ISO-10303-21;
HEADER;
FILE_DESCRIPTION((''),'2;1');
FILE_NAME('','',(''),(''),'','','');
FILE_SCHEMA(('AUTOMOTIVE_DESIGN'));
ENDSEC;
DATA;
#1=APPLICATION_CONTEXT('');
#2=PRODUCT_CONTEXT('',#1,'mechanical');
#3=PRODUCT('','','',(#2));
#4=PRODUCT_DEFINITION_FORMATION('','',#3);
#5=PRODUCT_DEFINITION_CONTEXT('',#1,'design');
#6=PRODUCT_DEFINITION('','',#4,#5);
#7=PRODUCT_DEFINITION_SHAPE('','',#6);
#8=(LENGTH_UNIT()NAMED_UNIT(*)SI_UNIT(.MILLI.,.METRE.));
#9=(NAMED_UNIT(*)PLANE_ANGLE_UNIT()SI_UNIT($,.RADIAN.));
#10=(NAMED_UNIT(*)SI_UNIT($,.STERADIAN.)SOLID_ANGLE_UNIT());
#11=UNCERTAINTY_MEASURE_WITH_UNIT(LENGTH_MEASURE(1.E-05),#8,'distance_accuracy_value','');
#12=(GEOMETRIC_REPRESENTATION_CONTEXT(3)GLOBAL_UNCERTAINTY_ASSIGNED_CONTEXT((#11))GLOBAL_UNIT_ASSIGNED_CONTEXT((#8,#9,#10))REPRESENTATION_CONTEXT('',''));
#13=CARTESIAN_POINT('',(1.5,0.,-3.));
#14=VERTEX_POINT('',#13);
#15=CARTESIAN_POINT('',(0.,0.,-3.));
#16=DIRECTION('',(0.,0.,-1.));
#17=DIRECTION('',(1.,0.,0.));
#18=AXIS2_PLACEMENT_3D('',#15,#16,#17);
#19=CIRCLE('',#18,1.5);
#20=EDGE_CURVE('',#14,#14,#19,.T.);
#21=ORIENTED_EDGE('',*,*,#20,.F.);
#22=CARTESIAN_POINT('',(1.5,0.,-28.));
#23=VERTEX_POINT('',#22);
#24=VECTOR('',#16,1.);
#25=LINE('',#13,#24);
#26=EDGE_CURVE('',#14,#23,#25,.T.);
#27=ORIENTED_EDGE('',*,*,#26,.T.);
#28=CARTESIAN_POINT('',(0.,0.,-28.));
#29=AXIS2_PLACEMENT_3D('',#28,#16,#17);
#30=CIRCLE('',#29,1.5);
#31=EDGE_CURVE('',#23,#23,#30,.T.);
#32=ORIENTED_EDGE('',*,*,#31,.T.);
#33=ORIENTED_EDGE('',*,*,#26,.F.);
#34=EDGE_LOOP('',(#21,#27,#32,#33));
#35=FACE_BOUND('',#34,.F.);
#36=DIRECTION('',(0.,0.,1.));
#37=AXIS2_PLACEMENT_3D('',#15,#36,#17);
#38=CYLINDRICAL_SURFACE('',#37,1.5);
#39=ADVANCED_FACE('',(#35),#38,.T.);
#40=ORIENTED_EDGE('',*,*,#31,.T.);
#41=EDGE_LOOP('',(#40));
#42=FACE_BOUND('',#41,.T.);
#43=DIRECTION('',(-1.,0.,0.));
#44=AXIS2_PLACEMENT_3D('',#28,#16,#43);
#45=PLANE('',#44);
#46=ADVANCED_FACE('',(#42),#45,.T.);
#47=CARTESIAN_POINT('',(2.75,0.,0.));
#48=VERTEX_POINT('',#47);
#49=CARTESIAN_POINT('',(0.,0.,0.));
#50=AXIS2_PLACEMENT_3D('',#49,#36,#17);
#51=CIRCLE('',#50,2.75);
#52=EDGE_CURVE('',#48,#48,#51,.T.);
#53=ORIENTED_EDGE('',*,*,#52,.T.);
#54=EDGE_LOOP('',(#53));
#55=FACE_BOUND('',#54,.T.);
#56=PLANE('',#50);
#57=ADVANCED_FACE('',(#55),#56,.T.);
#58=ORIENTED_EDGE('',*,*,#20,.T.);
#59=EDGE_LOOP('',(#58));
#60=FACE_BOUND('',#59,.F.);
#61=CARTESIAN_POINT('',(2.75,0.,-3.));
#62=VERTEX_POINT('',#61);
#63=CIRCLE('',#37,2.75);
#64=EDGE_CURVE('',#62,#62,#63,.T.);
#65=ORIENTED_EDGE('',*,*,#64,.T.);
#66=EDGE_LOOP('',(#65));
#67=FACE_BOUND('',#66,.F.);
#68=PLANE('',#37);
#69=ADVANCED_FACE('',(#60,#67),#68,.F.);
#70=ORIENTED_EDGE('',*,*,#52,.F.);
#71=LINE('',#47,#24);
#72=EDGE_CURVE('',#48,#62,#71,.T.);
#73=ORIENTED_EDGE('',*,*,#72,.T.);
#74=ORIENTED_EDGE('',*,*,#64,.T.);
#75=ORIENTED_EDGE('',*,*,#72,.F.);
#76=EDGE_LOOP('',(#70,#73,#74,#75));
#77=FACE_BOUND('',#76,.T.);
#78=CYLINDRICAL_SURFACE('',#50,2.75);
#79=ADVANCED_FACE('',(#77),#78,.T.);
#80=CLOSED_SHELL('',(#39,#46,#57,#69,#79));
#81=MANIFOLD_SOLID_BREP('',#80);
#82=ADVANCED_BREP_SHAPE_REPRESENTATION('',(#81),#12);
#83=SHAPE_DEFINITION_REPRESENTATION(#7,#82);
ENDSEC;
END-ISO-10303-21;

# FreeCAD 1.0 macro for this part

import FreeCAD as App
import Part
import Sketcher

V = App.Vector

doc = App.newDocument("Part")
body = doc.addObject("PartDesign::Body", "Body")

sketch1 = body.newObject("Sketcher::SketchObject", "Sketch")
sketch1.AttachmentSupport = (doc.getObject("XY_Plane"), [""])
sketch1.MapMode = "FlatFace"
sketch1.addGeometry(Part.Circle(V(0, 0, 0), V(0, 0, 1), 2.75), False)
sketch1.addConstraint([
    Sketcher.Constraint("Coincident", 0, 3, -1, 1),
    Sketcher.Constraint("Diameter", 0, 5.5),
])
pad1 = body.newObject("PartDesign::Pad", "Pad")
pad1.Profile = sketch1
pad1.Length = 3
pad1.Reversed = True

sketch2 = body.newObject("Sketcher::SketchObject", "Sketch001")
sketch2.AttachmentSupport = (doc.getObject("XY_Plane"), [""])
sketch2.MapMode = "FlatFace"
sketch2.AttachmentOffset = App.Placement(V(0, 0, -3), App.Rotation())
sketch2.addGeometry(Part.Circle(V(0, 0, 0), V(0, 0, 1), 1.5), False)
sketch2.addConstraint([
    Sketcher.Constraint("Coincident", 0, 3, -1, 1),
    Sketcher.Constraint("Diameter", 0, 3.0),
])
pad2 = body.newObject("PartDesign::Pad", "Pad001")
pad2.Profile = sketch2
pad2.Length = 25
pad2.Reversed = True

doc.recompute()
